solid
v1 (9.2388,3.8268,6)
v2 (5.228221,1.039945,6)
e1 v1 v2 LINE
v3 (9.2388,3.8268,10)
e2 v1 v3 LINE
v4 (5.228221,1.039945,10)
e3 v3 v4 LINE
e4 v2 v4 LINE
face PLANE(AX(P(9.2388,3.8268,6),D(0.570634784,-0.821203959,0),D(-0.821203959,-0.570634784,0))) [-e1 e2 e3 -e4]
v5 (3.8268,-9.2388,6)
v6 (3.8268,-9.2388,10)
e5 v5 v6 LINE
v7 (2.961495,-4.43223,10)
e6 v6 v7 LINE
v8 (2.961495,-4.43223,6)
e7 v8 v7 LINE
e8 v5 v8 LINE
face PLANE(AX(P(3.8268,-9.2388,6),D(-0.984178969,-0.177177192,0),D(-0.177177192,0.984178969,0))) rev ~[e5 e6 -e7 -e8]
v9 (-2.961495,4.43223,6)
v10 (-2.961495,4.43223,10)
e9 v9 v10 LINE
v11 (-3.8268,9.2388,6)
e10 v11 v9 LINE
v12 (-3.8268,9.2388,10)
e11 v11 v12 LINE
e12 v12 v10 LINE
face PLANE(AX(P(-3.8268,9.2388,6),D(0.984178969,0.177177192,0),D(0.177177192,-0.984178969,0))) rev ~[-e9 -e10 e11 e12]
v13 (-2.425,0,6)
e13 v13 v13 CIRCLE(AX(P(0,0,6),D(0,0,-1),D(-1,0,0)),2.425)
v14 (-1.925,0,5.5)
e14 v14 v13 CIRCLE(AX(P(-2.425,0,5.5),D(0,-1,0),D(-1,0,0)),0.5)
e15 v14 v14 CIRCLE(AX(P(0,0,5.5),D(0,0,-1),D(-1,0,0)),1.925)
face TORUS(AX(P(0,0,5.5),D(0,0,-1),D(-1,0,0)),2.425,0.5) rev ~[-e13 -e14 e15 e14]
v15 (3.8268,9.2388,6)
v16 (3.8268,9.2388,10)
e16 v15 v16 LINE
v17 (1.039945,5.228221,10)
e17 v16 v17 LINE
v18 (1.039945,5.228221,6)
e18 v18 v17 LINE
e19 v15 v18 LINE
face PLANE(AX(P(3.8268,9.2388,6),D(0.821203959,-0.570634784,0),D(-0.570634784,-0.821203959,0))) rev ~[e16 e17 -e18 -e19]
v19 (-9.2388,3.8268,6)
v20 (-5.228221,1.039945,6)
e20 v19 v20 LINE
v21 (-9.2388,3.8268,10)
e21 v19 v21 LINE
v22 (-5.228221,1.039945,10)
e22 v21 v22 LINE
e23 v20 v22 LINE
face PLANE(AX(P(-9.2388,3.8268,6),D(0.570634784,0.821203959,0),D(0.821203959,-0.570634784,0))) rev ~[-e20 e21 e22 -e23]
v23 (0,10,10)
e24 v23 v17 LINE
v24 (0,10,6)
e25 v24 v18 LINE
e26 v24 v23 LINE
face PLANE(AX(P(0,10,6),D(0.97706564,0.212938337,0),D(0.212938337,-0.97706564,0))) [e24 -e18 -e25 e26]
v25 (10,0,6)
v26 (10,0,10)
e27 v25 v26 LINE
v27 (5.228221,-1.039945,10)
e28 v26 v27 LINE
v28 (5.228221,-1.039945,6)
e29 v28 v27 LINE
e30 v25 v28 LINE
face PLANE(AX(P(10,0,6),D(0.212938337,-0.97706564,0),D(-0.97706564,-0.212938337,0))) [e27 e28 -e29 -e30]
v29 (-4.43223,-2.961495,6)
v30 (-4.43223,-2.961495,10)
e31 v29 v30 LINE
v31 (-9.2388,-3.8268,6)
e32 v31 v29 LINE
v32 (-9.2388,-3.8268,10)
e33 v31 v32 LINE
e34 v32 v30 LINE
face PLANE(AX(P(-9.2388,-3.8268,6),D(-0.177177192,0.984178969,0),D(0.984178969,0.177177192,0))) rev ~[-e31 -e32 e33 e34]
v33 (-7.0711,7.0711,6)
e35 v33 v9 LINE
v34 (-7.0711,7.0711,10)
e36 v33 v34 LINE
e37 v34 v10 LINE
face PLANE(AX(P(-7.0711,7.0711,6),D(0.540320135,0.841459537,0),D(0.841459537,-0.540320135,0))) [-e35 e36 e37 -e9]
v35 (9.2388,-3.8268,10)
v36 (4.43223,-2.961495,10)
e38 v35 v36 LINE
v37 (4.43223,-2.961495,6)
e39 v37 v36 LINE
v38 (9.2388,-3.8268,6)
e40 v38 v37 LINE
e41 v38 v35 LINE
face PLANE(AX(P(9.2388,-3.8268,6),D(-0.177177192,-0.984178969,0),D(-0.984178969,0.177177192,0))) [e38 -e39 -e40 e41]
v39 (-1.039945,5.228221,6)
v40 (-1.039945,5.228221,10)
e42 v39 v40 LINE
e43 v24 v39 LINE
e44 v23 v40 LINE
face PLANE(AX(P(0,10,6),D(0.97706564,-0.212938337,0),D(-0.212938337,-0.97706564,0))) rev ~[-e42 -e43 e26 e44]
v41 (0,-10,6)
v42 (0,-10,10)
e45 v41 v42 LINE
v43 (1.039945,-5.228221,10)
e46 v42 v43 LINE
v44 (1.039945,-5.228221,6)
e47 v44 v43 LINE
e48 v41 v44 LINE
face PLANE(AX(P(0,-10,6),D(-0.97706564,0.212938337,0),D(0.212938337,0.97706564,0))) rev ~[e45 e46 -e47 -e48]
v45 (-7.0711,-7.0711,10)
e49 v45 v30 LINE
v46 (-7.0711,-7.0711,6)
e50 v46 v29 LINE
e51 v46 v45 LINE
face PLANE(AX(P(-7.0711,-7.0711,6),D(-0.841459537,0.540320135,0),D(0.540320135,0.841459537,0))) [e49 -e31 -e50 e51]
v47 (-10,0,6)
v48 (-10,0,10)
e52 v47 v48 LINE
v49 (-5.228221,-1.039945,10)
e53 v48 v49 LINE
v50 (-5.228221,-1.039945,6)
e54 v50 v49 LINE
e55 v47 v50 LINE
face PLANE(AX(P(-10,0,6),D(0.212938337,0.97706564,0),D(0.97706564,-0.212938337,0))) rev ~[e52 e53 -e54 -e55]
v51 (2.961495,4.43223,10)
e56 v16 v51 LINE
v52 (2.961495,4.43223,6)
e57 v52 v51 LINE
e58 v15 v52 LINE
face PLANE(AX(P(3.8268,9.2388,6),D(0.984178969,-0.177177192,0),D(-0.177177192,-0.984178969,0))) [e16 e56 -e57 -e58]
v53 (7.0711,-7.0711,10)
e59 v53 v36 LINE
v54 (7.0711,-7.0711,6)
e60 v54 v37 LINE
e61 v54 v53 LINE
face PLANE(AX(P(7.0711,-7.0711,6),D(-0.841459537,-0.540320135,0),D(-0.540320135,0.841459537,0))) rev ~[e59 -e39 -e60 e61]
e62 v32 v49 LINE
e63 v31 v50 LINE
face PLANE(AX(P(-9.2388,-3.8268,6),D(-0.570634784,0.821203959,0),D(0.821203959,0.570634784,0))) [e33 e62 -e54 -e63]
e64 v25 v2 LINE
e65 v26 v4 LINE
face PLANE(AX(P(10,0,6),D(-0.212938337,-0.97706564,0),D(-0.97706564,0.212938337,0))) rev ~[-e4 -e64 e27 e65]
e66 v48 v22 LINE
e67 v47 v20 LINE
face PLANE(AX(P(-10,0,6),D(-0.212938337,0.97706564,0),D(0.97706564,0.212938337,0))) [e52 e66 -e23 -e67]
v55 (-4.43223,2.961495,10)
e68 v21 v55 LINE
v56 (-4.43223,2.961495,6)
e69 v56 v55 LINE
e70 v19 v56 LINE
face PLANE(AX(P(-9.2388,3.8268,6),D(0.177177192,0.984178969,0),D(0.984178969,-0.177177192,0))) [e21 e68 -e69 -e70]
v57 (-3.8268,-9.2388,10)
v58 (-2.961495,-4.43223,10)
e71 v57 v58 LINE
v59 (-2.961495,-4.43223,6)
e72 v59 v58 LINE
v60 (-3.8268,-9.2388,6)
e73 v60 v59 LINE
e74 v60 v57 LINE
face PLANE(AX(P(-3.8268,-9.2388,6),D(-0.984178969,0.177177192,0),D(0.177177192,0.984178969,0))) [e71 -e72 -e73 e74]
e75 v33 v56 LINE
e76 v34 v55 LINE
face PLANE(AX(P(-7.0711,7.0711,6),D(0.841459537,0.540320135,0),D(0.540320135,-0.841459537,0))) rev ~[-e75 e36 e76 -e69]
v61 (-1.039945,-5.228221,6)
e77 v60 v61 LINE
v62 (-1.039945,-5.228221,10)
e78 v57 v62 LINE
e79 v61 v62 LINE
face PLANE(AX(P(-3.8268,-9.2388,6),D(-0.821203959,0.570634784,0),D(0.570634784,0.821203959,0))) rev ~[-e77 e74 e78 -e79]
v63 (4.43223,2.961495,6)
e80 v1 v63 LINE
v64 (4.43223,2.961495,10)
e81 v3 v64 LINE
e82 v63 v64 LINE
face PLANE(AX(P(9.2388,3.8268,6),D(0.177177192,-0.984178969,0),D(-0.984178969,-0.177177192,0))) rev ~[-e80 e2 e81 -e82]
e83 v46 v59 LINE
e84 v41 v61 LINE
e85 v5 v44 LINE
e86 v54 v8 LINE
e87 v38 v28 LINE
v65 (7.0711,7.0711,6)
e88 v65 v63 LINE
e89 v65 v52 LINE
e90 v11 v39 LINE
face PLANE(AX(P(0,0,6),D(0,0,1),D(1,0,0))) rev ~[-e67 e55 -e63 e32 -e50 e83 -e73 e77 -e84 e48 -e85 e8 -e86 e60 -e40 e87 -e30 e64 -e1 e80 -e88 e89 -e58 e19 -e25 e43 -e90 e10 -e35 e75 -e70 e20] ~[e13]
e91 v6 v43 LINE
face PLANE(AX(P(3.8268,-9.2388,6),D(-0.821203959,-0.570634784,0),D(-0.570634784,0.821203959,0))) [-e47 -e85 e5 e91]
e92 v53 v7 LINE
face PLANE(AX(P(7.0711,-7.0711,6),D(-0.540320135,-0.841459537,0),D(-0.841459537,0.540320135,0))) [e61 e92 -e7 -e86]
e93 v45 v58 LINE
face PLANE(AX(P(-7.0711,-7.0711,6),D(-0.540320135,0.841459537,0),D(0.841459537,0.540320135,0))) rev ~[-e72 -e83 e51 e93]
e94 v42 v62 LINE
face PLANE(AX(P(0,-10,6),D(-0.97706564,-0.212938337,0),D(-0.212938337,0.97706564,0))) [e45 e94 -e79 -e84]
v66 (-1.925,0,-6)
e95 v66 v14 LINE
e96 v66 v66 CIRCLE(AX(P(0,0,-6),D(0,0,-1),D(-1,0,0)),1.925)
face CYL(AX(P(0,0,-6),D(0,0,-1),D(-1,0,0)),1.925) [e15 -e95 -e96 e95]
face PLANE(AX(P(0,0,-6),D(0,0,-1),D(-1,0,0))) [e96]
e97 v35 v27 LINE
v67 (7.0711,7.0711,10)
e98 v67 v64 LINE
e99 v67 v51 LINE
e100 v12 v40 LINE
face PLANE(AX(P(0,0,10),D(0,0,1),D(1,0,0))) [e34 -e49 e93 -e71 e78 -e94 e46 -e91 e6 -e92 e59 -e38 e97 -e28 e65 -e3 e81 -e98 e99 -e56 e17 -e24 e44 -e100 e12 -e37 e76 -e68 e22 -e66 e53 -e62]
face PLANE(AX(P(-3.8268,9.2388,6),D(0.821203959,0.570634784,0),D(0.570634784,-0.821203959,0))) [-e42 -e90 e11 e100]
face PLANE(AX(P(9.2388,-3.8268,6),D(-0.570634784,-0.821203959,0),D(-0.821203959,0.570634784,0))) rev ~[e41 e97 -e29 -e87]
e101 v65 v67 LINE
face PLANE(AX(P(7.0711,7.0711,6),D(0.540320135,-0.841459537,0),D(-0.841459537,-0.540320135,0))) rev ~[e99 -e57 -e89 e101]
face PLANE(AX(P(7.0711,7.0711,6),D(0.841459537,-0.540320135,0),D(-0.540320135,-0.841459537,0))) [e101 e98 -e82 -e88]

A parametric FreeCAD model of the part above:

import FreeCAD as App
import Part
import Sketcher
Q = App.Units.Quantity


def edges_at(feature, points):
    """Names of the edges that pass closest to the given points."""
    edges = feature.Shape.Edges
    near = lambda p: min(range(len(edges)), key=lambda i: edges[i].distToShape(Part.Vertex(*p))[0])
    return sorted({f"Edge{near(p) + 1}" for p in points})

doc = App.newDocument("Part")
body = doc.addObject("PartDesign::Body", "Body")

sketch1 = body.newObject("Sketcher::SketchObject", "Sketch")
sketch1.AttachmentSupport = (doc.getObject("XY_Plane"), [""])
sketch1.MapMode = "FlatFace"
sketch1.addGeometry(Part.Circle(App.Vector(0, 0, 0), App.Vector(0, 0, 1), 3.25), False)
sketch1.addConstraint([
    Sketcher.Constraint("Coincident", 0, 3, -1, 1),
    Sketcher.Constraint("Diameter", 0, Q("6.5 mm")),
])
pad1 = body.newObject("PartDesign::Pad", "Pad")
pad1.Profile = sketch1
pad1.Length = 6

sketch2 = body.newObject("Sketcher::SketchObject", "Sketch001")
sketch2.AttachmentSupport = (doc.getObject("XY_Plane"), [""])
sketch2.MapMode = "FlatFace"
sketch2.addGeometry(Part.Circle(App.Vector(0, 0, 0), App.Vector(0, 0, 1), 3.65), False)
sketch2.addConstraint([
    Sketcher.Constraint("Coincident", 0, 3, -1, 1),
    Sketcher.Constraint("Diameter", 0, Q("7.3 mm")),
])
pad2 = body.newObject("PartDesign::Pad", "Pad001")
pad2.Profile = sketch2
pad2.Length = 6

sketch3 = body.newObject("Sketcher::SketchObject", "Sketch002")
sketch3.AttachmentSupport = (doc.getObject("XY_Plane"), [""])
sketch3.MapMode = "FlatFace"
sketch3.AttachmentOffset = App.Placement(App.Vector(0, 0, 6), App.Rotation())
sketch3.addGeometry([
    Part.LineSegment(App.Vector(5.228221, -1.039945, 0), App.Vector(10, 0, 0)),
    Part.LineSegment(App.Vector(10, 0, 0), App.Vector(5.228221, 1.039945, 0)),
    Part.LineSegment(App.Vector(5.228221, 1.039945, 0), App.Vector(9.2388, 3.8268, 0)),
    Part.LineSegment(App.Vector(9.2388, 3.8268, 0), App.Vector(4.43223, 2.961495, 0)),
    Part.LineSegment(App.Vector(4.43223, 2.961495, 0), App.Vector(7.0711, 7.0711, 0)),
    Part.LineSegment(App.Vector(7.0711, 7.0711, 0), App.Vector(2.961495, 4.43223, 0)),
    Part.LineSegment(App.Vector(2.961495, 4.43223, 0), App.Vector(3.8268, 9.2388, 0)),
    Part.LineSegment(App.Vector(3.8268, 9.2388, 0), App.Vector(1.039945, 5.228221, 0)),
    Part.LineSegment(App.Vector(1.039945, 5.228221, 0), App.Vector(0, 10, 0)),
    Part.LineSegment(App.Vector(0, 10, 0), App.Vector(-1.039945, 5.228221, 0)),
    Part.LineSegment(App.Vector(-1.039945, 5.228221, 0), App.Vector(-3.8268, 9.2388, 0)),
    Part.LineSegment(App.Vector(-3.8268, 9.2388, 0), App.Vector(-2.961495, 4.43223, 0)),
    Part.LineSegment(App.Vector(-2.961495, 4.43223, 0), App.Vector(-7.0711, 7.0711, 0)),
    Part.LineSegment(App.Vector(-7.0711, 7.0711, 0), App.Vector(-4.43223, 2.961495, 0)),
    Part.LineSegment(App.Vector(-4.43223, 2.961495, 0), App.Vector(-9.2388, 3.8268, 0)),
    Part.LineSegment(App.Vector(-9.2388, 3.8268, 0), App.Vector(-5.228221, 1.039945, 0)),
    Part.LineSegment(App.Vector(-5.228221, 1.039945, 0), App.Vector(-10, 0, 0)),
    Part.LineSegment(App.Vector(-10, 0, 0), App.Vector(-5.228221, -1.039945, 0)),
    Part.LineSegment(App.Vector(-5.228221, -1.039945, 0), App.Vector(-9.2388, -3.8268, 0)),
    Part.LineSegment(App.Vector(-9.2388, -3.8268, 0), App.Vector(-4.43223, -2.961495, 0)),
    Part.LineSegment(App.Vector(-4.43223, -2.961495, 0), App.Vector(-7.0711, -7.0711, 0)),
    Part.LineSegment(App.Vector(-7.0711, -7.0711, 0), App.Vector(-2.961495, -4.43223, 0)),
    Part.LineSegment(App.Vector(-2.961495, -4.43223, 0), App.Vector(-3.8268, -9.2388, 0)),
    Part.LineSegment(App.Vector(-3.8268, -9.2388, 0), App.Vector(-1.039945, -5.228221, 0)),
    Part.LineSegment(App.Vector(-1.039945, -5.228221, 0), App.Vector(0, -10, 0)),
    Part.LineSegment(App.Vector(0, -10, 0), App.Vector(1.039945, -5.228221, 0)),
    Part.LineSegment(App.Vector(1.039945, -5.228221, 0), App.Vector(3.8268, -9.2388, 0)),
    Part.LineSegment(App.Vector(3.8268, -9.2388, 0), App.Vector(2.961495, -4.43223, 0)),
    Part.LineSegment(App.Vector(2.961495, -4.43223, 0), App.Vector(7.0711, -7.0711, 0)),
    Part.LineSegment(App.Vector(7.0711, -7.0711, 0), App.Vector(4.43223, -2.961495, 0)),
    Part.LineSegment(App.Vector(4.43223, -2.961495, 0), App.Vector(9.2388, -3.8268, 0)),
    Part.LineSegment(App.Vector(9.2388, -3.8268, 0), App.Vector(5.228221, -1.039945, 0)),
], False)
sketch3.addConstraint([
    Sketcher.Constraint("Coincident", 0, 2, 1, 1),
    Sketcher.Constraint("Coincident", 1, 2, 2, 1),
    Sketcher.Constraint("Coincident", 2, 2, 3, 1),
    Sketcher.Constraint("Coincident", 3, 2, 4, 1),
    Sketcher.Constraint("Coincident", 4, 2, 5, 1),
    Sketcher.Constraint("Coincident", 5, 2, 6, 1),
    Sketcher.Constraint("Coincident", 6, 2, 7, 1),
    Sketcher.Constraint("Coincident", 7, 2, 8, 1),
    Sketcher.Constraint("Coincident", 8, 2, 9, 1),
    Sketcher.Constraint("Coincident", 9, 2, 10, 1),
    Sketcher.Constraint("Coincident", 10, 2, 11, 1),
    Sketcher.Constraint("Coincident", 11, 2, 12, 1),
    Sketcher.Constraint("Coincident", 12, 2, 13, 1),
    Sketcher.Constraint("Coincident", 13, 2, 14, 1),
    Sketcher.Constraint("Coincident", 14, 2, 15, 1),
    Sketcher.Constraint("Coincident", 15, 2, 16, 1),
    Sketcher.Constraint("Coincident", 16, 2, 17, 1),
    Sketcher.Constraint("Coincident", 17, 2, 18, 1),
    Sketcher.Constraint("Coincident", 18, 2, 19, 1),
    Sketcher.Constraint("Coincident", 19, 2, 20, 1),
    Sketcher.Constraint("Coincident", 20, 2, 21, 1),
    Sketcher.Constraint("Coincident", 21, 2, 22, 1),
    Sketcher.Constraint("Coincident", 22, 2, 23, 1),
    Sketcher.Constraint("Coincident", 23, 2, 24, 1),
    Sketcher.Constraint("Coincident", 24, 2, 25, 1),
    Sketcher.Constraint("Coincident", 25, 2, 26, 1),
    Sketcher.Constraint("Coincident", 26, 2, 27, 1),
    Sketcher.Constraint("Coincident", 27, 2, 28, 1),
    Sketcher.Constraint("Coincident", 28, 2, 29, 1),
    Sketcher.Constraint("Coincident", 29, 2, 30, 1),
    Sketcher.Constraint("Coincident", 30, 2, 31, 1),
    Sketcher.Constraint("Coincident", 31, 2, 0, 1),
    Sketcher.Constraint("Symmetric", 0, 2, 16, 2, -1, 1),
    Sketcher.Constraint("Symmetric", 1, 2, 17, 2, -1, 1),
    Sketcher.Constraint("Symmetric", 2, 2, 18, 2, -1, 1),
    Sketcher.Constraint("Symmetric", 3, 2, 19, 2, -1, 1),
    Sketcher.Constraint("Symmetric", 4, 2, 20, 2, -1, 1),
    Sketcher.Constraint("Symmetric", 5, 2, 21, 2, -1, 1),
    Sketcher.Constraint("Symmetric", 6, 2, 22, 2, -1, 1),
    Sketcher.Constraint("Symmetric", 7, 2, 23, 2, -1, 1),
    Sketcher.Constraint("Symmetric", 8, 2, 24, 2, -1, 1),
    Sketcher.Constraint("Symmetric", 9, 2, 25, 2, -1, 1),
    Sketcher.Constraint("Symmetric", 10, 2, 26, 2, -1, 1),
    Sketcher.Constraint("Symmetric", 11, 2, 27, 2, -1, 1),
    Sketcher.Constraint("Symmetric", 12, 2, 28, 2, -1, 1),
    Sketcher.Constraint("Symmetric", 13, 2, 29, 2, -1, 1),
    Sketcher.Constraint("Symmetric", 14, 2, 30, 2, -1, 1),
    Sketcher.Constraint("Symmetric", 15, 2, 31, 2, -1, 1),
    Sketcher.Constraint("Symmetric", 7, 2, 9, 2, -2),
    Sketcher.Constraint("Symmetric", 6, 2, 10, 2, -2),
    Sketcher.Constraint("Symmetric", 5, 2, 11, 2, -2),
    Sketcher.Constraint("Symmetric", 4, 2, 12, 2, -2),
    Sketcher.Constraint("Symmetric", 3, 2, 13, 2, -2),
    Sketcher.Constraint("Symmetric", 2, 2, 14, 2, -2),
    Sketcher.Constraint("Symmetric", 1, 2, 15, 2, -2),
    Sketcher.Constraint("PointOnObject", 0, 2, -1),
    Sketcher.Constraint("PointOnObject", 8, 2, -2),
    Sketcher.Constraint("Perpendicular", 0, 8),
    Sketcher.Constraint("Perpendicular", 2, 10),
    Sketcher.Constraint("Perpendicular", 3, 11),
    Sketcher.Constraint("Perpendicular", 4, 12),
    Sketcher.Constraint("Equal", 1, 2),
    Sketcher.Constraint("Equal", 2, 3),
    Sketcher.Constraint("Equal", 3, 4),
    Sketcher.Constraint("Equal", 4, 5),
    Sketcher.Constraint("Equal", 5, 6),
    Sketcher.Constraint("Equal", 6, 7),
    Sketcher.Constraint("Equal", 7, 8),
    Sketcher.Constraint("DistanceX", -1, 1, 0, 2, Q("10 mm")),
    Sketcher.Constraint("DistanceY", -1, 1, 1, 2, Q("1.04 mm")),
    Sketcher.Constraint("Distance", 4, Q("4.884 mm")),
    Sketcher.Constraint("DistanceX", -1, 1, 4, 2, Q("7.071 mm")),
    Sketcher.Constraint("DistanceX", 3, 2, 1, 2, Q("0.796 mm")),
])
pad3 = body.newObject("PartDesign::Pad", "Pad002")
pad3.Profile = sketch3
pad3.Length = 4

sketch4 = body.newObject("Sketcher::SketchObject", "Sketch003")
sketch4.AttachmentSupport = (doc.getObject("XY_Plane"), [""])
sketch4.MapMode = "FlatFace"
sketch4.addGeometry(Part.Circle(App.Vector(0, 0, 0), App.Vector(0, 0, 1), 3.65), False)
sketch4.addConstraint([
    Sketcher.Constraint("Coincident", 0, 3, -1, 1),
    Sketcher.Constraint("Diameter", 0, Q("7.3 mm")),
])
pad4 = body.newObject("PartDesign::Pad", "Pad003")
pad4.Profile = sketch4
pad4.Length = 6
pad4.Reversed = True

sketch5 = body.newObject("Sketcher::SketchObject", "Sketch004")
sketch5.AttachmentSupport = (doc.getObject("XY_Plane"), [""])
sketch5.MapMode = "FlatFace"
sketch5.AttachmentOffset = App.Placement(App.Vector(0, 0, -6), App.Rotation())
sketch5.addGeometry([
    Part.Circle(App.Vector(0, 0, 0), App.Vector(0, 0, 1), 3.65),
    Part.Circle(App.Vector(0, 0, 0), App.Vector(0, 0, 1), 1.425),
], False)
sketch5.addConstraint([
    Sketcher.Constraint("Coincident", 0, 3, -1, 1),
    Sketcher.Constraint("Coincident", 1, 3, -1, 1),
    Sketcher.Constraint("Diameter", 1, Q("2.85 mm")),
    Sketcher.Constraint("Diameter", 0, Q("7.3 mm")),
])
pocket1 = body.newObject("PartDesign::Pocket", "Pocket")
pocket1.Profile = sketch5
pocket1.Length = 12
pocket1.Reversed = True
doc.recompute()

fillet = body.newObject("PartDesign::Fillet", "Fillet")
fillet.Base = (pocket1, edges_at(pocket1, [(1.425, 0, 6)]))
fillet.Radius = 0.5

sketch6 = body.newObject("Sketcher::SketchObject", "Sketch005")
sketch6.AttachmentSupport = (doc.getObject("XY_Plane"), [""])
sketch6.MapMode = "FlatFace"
sketch6.AttachmentOffset = App.Placement(App.Vector(0, 0, -6), App.Rotation())
sketch6.addGeometry(Part.Circle(App.Vector(0, 0, 0), App.Vector(0, 0, 1), 1.925), False)
sketch6.addConstraint([
    Sketcher.Constraint("Coincident", 0, 3, -1, 1),
    Sketcher.Constraint("Diameter", 0, Q("3.85 mm")),
])
pad5 = body.newObject("PartDesign::Pad", "Pad004")
pad5.Profile = sketch6
pad5.Length = 12.75
doc.recompute()

fillet2 = body.newObject("PartDesign::Fillet", "Fillet001")
fillet2.Base = (pad5, edges_at(pad5, [(1.925, 0, 6)]))
fillet2.Radius = 0.5

doc.recompute()
